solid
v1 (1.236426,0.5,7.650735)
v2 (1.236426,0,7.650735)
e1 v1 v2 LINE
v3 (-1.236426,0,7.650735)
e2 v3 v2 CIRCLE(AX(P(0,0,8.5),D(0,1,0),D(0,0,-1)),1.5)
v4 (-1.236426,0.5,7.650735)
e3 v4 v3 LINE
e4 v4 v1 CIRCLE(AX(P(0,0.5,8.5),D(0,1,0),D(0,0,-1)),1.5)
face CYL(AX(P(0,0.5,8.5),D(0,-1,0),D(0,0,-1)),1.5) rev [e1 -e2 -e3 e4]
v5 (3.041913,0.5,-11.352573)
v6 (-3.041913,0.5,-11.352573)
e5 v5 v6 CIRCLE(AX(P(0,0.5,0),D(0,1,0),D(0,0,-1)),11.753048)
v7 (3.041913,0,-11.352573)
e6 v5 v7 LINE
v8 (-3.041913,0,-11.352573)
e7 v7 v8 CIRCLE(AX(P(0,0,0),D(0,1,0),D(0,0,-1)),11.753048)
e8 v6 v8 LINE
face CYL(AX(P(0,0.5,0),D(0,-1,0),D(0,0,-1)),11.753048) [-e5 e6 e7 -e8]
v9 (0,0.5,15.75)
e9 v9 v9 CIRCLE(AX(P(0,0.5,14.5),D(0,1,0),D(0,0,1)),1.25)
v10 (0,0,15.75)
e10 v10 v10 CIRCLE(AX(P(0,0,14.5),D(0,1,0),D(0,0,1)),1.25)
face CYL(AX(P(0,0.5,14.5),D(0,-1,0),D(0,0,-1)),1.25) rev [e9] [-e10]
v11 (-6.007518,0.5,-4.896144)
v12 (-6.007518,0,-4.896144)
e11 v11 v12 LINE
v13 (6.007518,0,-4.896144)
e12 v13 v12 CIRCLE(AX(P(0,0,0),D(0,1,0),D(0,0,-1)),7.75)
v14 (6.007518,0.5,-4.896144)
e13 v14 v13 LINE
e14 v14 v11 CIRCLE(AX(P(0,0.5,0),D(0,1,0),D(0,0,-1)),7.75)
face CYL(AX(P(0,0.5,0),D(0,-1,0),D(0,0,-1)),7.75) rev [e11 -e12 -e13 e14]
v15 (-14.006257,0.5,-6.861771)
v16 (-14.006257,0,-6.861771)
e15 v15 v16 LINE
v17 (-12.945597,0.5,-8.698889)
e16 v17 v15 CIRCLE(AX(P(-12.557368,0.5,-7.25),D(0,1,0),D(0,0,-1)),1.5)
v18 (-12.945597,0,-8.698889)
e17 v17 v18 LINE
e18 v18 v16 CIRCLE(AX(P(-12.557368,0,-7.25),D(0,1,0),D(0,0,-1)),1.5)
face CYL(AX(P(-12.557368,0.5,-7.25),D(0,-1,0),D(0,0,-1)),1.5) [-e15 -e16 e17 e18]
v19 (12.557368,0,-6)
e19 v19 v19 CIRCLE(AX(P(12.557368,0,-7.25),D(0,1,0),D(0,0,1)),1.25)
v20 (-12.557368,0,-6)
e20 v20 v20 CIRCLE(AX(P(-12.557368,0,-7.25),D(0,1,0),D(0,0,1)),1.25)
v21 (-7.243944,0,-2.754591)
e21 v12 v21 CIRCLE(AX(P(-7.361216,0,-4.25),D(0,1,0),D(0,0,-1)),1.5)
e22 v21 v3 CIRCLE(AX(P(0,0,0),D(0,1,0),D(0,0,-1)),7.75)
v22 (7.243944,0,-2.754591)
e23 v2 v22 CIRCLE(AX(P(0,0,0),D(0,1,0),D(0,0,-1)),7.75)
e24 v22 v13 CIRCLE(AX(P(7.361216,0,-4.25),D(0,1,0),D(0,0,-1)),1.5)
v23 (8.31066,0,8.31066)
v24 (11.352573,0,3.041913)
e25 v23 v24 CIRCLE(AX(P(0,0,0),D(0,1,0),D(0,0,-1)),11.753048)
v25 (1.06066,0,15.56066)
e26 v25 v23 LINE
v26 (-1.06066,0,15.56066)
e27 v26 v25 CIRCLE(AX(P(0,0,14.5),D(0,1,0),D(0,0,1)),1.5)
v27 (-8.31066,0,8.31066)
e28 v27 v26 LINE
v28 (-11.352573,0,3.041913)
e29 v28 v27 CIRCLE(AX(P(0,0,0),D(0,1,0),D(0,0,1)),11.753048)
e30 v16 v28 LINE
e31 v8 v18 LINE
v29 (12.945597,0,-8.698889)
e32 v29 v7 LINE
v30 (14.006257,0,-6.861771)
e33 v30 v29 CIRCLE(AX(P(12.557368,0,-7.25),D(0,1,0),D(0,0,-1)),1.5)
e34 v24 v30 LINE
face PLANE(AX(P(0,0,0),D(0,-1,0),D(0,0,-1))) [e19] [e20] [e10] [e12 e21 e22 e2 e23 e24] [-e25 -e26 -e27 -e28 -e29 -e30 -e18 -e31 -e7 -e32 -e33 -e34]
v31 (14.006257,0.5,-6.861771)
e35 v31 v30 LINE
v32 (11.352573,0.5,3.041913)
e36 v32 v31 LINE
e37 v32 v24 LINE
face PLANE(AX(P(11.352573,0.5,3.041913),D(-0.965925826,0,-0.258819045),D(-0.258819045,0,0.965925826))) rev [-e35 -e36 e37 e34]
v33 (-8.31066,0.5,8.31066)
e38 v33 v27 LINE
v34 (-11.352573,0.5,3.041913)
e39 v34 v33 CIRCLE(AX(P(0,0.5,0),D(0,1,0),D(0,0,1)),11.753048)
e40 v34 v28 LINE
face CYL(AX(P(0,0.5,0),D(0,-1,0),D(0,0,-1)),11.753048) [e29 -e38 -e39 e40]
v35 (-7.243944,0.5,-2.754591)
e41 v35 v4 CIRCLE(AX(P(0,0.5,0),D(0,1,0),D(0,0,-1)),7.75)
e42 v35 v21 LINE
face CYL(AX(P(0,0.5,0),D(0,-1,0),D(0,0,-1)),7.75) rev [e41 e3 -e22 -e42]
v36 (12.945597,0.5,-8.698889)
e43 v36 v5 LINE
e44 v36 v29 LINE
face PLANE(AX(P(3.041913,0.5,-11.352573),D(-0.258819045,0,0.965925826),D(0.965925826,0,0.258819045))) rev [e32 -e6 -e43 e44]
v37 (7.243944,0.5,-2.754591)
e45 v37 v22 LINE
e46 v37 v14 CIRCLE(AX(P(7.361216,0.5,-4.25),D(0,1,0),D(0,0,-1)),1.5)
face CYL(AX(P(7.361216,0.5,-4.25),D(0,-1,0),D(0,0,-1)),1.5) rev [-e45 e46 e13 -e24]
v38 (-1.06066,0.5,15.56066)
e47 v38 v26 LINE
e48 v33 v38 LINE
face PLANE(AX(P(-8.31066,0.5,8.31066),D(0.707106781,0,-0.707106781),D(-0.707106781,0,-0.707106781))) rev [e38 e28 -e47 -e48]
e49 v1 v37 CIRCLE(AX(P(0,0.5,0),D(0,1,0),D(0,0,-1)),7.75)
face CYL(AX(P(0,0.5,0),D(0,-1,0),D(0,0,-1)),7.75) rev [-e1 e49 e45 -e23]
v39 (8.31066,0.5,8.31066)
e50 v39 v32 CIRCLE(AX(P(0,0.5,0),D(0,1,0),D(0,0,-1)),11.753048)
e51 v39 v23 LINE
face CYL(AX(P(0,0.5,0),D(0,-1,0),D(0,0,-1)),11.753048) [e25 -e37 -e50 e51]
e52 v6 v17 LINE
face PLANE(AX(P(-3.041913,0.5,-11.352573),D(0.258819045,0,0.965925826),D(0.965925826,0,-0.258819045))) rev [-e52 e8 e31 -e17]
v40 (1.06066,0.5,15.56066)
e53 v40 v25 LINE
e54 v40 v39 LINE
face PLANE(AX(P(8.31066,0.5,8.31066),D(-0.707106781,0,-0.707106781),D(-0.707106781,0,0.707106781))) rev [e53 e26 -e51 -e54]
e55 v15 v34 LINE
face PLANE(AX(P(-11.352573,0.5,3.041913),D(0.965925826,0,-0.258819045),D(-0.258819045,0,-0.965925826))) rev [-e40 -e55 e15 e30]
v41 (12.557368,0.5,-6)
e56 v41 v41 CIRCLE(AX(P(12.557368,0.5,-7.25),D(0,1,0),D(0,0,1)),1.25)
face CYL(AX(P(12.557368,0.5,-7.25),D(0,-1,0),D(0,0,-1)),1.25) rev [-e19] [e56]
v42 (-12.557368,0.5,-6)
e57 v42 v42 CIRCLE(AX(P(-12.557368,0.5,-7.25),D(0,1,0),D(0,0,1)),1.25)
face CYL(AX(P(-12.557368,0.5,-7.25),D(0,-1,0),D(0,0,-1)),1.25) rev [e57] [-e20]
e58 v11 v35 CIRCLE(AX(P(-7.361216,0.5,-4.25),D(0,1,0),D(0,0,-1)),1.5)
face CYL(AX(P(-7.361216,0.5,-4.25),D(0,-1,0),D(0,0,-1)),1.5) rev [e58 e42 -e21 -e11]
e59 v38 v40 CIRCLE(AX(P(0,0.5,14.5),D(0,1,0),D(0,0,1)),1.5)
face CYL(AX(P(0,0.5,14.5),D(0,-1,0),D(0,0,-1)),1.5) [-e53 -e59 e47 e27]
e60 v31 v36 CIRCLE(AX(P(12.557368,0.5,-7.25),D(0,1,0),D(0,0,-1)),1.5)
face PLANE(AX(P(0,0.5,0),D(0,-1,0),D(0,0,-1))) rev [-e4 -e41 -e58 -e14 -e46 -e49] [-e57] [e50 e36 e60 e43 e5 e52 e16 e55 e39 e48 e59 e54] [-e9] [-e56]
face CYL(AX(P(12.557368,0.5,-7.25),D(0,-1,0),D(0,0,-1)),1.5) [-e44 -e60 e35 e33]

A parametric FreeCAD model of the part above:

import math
import FreeCAD as App
import Part
import Sketcher

V = App.Vector
Q = App.Units.Quantity

doc = App.newDocument("Part")
body = doc.addObject("PartDesign::Body", "Body")

# Sketch on XZ plane
sketch1 = doc.addObject("Sketcher::SketchObject", "Sketch")
body.addObject(sketch1)
sketch1.AttachmentSupport = (doc.XZ_Plane, [""])
sketch1.MapMode = "FlatFace"
sketch1.addGeometry(Part.LineSegment(V(-14.006257, -6.861771, 0), V(-11.352573, 3.041913, 0)), False)
sketch1.addGeometry(Part.ArcOfCircle(Part.Circle(V(0, 0, 0), V(0, 0, 1), 11.753048), math.radians(135), math.radians(165)), False)
sketch1.addGeometry(Part.LineSegment(V(-8.31066, 8.31066, 0), V(-1.06066, 15.56066, 0)), False)
sketch1.addGeometry(Part.ArcOfCircle(Part.Circle(V(0, 14.5, 0), V(0, 0, 1), 1.5), math.radians(45), math.radians(135)), False)
sketch1.addGeometry(Part.LineSegment(V(1.06066, 15.56066, 0), V(8.31066, 8.31066, 0)), False)
sketch1.addGeometry(Part.ArcOfCircle(Part.Circle(V(0, 0, 0), V(0, 0, 1), 11.753048), math.radians(15), math.radians(45)), False)
sketch1.addGeometry(Part.LineSegment(V(11.352573, 3.041913, 0), V(14.006257, -6.861771, 0)), False)
sketch1.addGeometry(Part.ArcOfCircle(Part.Circle(V(12.557368, -7.25, 0), V(0, 0, 1), 1.5), math.radians(-75), math.radians(15)), False)
sketch1.addGeometry(Part.LineSegment(V(12.945597, -8.698889, 0), V(3.041913, -11.352573, 0)), False)
sketch1.addGeometry(Part.ArcOfCircle(Part.Circle(V(0, 0, 0), V(0, 0, 1), 11.753048), math.radians(-105), math.radians(-75)), False)
sketch1.addGeometry(Part.LineSegment(V(-3.041913, -11.352573, 0), V(-12.945597, -8.698889, 0)), False)
sketch1.addGeometry(Part.ArcOfCircle(Part.Circle(V(-12.557368, -7.25, 0), V(0, 0, 1), 1.5), math.radians(165), math.radians(255)), False)
sketch1.addGeometry(Part.Circle(V(0, 14.5, 0), V(0, 0, 1), 1.25), False)
sketch1.addGeometry(Part.ArcOfCircle(Part.Circle(V(-7.361216, -4.25, 0), V(0, 0, 1), 1.5), math.radians(85.515973), math.radians(334.484027)), False)
sketch1.addGeometry(Part.ArcOfCircle(Part.Circle(V(0, 0, 0), V(0, 0, 1), 7.75), math.radians(-140.81987), math.radians(-39.18013)), False)
sketch1.addGeometry(Part.ArcOfCircle(Part.Circle(V(7.361216, -4.25, 0), V(0, 0, 1), 1.5), math.radians(-154.484027), math.radians(94.484027)), False)
sketch1.addGeometry(Part.ArcOfCircle(Part.Circle(V(0, 0, 0), V(0, 0, 1), 7.75), math.radians(-20.81987), math.radians(80.81987)), False)
sketch1.addGeometry(Part.ArcOfCircle(Part.Circle(V(0, 8.5, 0), V(0, 0, 1), 1.5), math.radians(-34.484027), math.radians(214.484027)), False)
sketch1.addGeometry(Part.ArcOfCircle(Part.Circle(V(0, 0, 0), V(0, 0, 1), 7.75), math.radians(99.18013), math.radians(200.81987)), False)
sketch1.addGeometry(Part.Circle(V(12.557368, -7.25, 0), V(0, 0, 1), 1.25), False)
sketch1.addGeometry(Part.Circle(V(-12.557368, -7.25, 0), V(0, 0, 1), 1.25), False)
sketch1.addConstraint(Sketcher.Constraint("Tangent", 0, 2, 1, 2))
sketch1.addConstraint(Sketcher.Constraint("Tangent", 1, 1, 2, 1))
sketch1.addConstraint(Sketcher.Constraint("Tangent", 2, 2, 3, 2))
sketch1.addConstraint(Sketcher.Constraint("Tangent", 3, 1, 4, 1))
sketch1.addConstraint(Sketcher.Constraint("Tangent", 4, 2, 5, 2))
sketch1.addConstraint(Sketcher.Constraint("Tangent", 5, 1, 6, 1))
sketch1.addConstraint(Sketcher.Constraint("Tangent", 6, 2, 7, 2))
sketch1.addConstraint(Sketcher.Constraint("Tangent", 7, 1, 8, 1))
sketch1.addConstraint(Sketcher.Constraint("Tangent", 8, 2, 9, 2))
sketch1.addConstraint(Sketcher.Constraint("Tangent", 9, 1, 10, 1))
sketch1.addConstraint(Sketcher.Constraint("Tangent", 10, 2, 11, 2))
sketch1.addConstraint(Sketcher.Constraint("Tangent", 11, 1, 0, 1))
sketch1.addConstraint(Sketcher.Constraint("Coincident", 13, 2, 14, 1))
sketch1.addConstraint(Sketcher.Constraint("Coincident", 14, 2, 15, 1))
sketch1.addConstraint(Sketcher.Constraint("Coincident", 15, 2, 16, 1))
sketch1.addConstraint(Sketcher.Constraint("Coincident", 16, 2, 17, 1))
sketch1.addConstraint(Sketcher.Constraint("Coincident", 17, 2, 18, 1))
sketch1.addConstraint(Sketcher.Constraint("Coincident", 18, 2, 13, 1))
sketch1.addConstraint(Sketcher.Constraint("Coincident", 1, 3, -1, 1))
sketch1.addConstraint(Sketcher.Constraint("Coincident", 5, 3, -1, 1))
sketch1.addConstraint(Sketcher.Constraint("Coincident", 9, 3, -1, 1))
sketch1.addConstraint(Sketcher.Constraint("Coincident", 14, 3, -1, 1))
sketch1.addConstraint(Sketcher.Constraint("Coincident", 16, 3, -1, 1))
sketch1.addConstraint(Sketcher.Constraint("Coincident", 18, 3, -1, 1))
sketch1.addConstraint(Sketcher.Constraint("Coincident", 12, 3, 3, 3))
sketch1.addConstraint(Sketcher.Constraint("Coincident", 19, 3, 7, 3))
sketch1.addConstraint(Sketcher.Constraint("Coincident", 20, 3, 11, 3))
sketch1.addConstraint(Sketcher.Constraint("Equal", 1, 5))
sketch1.addConstraint(Sketcher.Constraint("Equal", 3, 7))
sketch1.addConstraint(Sketcher.Constraint("Equal", 5, 9))
sketch1.addConstraint(Sketcher.Constraint("Equal", 7, 11))
sketch1.addConstraint(Sketcher.Constraint("Equal", 11, 13))
sketch1.addConstraint(Sketcher.Constraint("Equal", 13, 15))
sketch1.addConstraint(Sketcher.Constraint("Equal", 14, 16))
sketch1.addConstraint(Sketcher.Constraint("Equal", 15, 17))
sketch1.addConstraint(Sketcher.Constraint("Equal", 16, 18))
sketch1.addConstraint(Sketcher.Constraint("Equal", 12, 19))
sketch1.addConstraint(Sketcher.Constraint("Equal", 19, 20))
sketch1.addConstraint(Sketcher.Constraint("Symmetric", 7, 3, 11, 3, -2))
sketch1.addConstraint(Sketcher.Constraint("Symmetric", 13, 3, 15, 3, -2))
sketch1.addConstraint(Sketcher.Constraint("PointOnObject", 3, 3, -2))
sketch1.addConstraint(Sketcher.Constraint("PointOnObject", 17, 3, -2))
sketch1.addConstraint(Sketcher.Constraint("Perpendicular", 2, 4))
sketch1.addConstraint(Sketcher.Constraint("Perpendicular", 6, 8))
sketch1.addConstraint(Sketcher.Constraint("Diameter", 12, Q("2.5 mm")))
sketch1.addConstraint(Sketcher.Constraint("Radius", 3, Q("1.5 mm")))
sketch1.addConstraint(Sketcher.Constraint("Angle", 0, Q("75 deg")))
sketch1.addConstraint(Sketcher.Constraint("Radius", 14, Q("7.75 mm")))
sketch1.addConstraint(Sketcher.Constraint("DistanceY", 11, 3, 13, 3, Q("3 mm")))
sketch1.addConstraint(Sketcher.Constraint("DistanceY", 17, 3, 3, 3, Q("6 mm")))
sketch1.addConstraint(Sketcher.Constraint("DistanceY", -1, 1, 3, 3, Q("14.5 mm")))
sketch1.addConstraint(Sketcher.Constraint("DistanceX", 13, 2, -1, 1, Q("6.007518 mm")))
pad1 = doc.addObject("PartDesign::Pad", "Pad")
body.addObject(pad1)
pad1.Profile = sketch1
pad1.Length = 0.5
pad1.Reversed = True

doc.recompute()
